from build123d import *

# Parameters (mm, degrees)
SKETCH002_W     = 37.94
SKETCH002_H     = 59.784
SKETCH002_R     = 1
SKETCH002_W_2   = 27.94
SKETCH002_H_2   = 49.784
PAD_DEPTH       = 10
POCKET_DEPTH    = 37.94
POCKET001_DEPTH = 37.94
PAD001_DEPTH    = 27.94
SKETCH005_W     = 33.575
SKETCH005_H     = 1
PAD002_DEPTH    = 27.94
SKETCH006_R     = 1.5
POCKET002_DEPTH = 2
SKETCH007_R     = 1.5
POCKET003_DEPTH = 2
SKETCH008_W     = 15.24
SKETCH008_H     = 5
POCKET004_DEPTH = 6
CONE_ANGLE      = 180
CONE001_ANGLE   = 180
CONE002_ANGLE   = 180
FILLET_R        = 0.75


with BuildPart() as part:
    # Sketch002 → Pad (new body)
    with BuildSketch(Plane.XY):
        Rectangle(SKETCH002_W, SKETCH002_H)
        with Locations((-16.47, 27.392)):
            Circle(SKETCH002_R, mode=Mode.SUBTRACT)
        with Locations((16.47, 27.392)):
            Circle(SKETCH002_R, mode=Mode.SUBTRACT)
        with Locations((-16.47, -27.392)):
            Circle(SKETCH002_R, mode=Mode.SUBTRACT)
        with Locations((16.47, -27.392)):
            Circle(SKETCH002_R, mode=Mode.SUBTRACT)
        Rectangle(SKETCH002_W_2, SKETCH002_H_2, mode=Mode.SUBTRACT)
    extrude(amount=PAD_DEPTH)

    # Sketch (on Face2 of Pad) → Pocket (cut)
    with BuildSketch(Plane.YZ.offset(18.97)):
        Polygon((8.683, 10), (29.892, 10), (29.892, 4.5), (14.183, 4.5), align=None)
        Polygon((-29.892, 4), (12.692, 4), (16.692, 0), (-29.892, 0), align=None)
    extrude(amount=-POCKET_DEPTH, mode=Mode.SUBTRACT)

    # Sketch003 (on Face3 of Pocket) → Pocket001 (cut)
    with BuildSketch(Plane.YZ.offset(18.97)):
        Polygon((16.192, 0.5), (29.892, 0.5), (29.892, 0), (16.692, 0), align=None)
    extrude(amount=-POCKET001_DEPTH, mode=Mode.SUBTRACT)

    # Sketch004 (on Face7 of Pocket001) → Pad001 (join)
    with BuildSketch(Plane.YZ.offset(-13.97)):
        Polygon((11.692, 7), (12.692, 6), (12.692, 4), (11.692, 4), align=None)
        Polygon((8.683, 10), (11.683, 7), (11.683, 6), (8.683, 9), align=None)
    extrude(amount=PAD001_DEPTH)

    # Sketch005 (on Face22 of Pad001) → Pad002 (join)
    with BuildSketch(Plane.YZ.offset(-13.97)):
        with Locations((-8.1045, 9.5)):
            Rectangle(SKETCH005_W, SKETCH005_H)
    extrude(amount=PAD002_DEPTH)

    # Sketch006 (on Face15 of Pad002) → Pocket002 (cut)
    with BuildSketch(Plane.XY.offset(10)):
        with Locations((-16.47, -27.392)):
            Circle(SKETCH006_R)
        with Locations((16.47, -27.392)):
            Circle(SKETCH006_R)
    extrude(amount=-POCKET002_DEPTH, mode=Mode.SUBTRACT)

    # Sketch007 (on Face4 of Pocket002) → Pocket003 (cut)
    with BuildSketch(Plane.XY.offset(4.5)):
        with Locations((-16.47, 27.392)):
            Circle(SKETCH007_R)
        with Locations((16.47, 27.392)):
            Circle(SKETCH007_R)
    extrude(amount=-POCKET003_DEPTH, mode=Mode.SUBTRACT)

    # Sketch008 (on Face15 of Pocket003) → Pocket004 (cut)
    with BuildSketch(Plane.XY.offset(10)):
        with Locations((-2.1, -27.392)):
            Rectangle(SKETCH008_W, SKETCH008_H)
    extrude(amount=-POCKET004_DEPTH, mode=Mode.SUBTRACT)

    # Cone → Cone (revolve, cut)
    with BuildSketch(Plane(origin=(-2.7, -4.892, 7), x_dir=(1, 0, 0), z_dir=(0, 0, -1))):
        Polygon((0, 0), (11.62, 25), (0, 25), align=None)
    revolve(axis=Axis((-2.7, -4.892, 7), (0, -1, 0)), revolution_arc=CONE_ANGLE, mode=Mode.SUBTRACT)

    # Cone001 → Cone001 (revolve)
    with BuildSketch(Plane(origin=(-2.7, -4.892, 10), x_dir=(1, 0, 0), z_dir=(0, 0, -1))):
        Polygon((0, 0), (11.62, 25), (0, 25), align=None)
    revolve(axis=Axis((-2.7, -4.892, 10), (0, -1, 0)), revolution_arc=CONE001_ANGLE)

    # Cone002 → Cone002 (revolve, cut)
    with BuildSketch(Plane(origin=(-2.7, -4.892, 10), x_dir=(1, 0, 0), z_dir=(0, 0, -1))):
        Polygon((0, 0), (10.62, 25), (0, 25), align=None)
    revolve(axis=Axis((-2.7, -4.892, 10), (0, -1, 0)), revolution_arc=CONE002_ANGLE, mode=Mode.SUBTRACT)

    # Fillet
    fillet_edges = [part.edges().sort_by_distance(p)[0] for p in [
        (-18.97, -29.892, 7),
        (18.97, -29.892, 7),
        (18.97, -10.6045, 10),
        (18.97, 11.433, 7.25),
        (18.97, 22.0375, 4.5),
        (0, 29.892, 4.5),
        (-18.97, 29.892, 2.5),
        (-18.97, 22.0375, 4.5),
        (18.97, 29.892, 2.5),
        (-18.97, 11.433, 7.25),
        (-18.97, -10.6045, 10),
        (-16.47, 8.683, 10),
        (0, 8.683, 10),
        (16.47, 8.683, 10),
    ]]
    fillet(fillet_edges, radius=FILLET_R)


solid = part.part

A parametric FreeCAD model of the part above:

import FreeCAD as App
import Part
import Sketcher

V = App.Vector
Q = App.Units.Quantity


def edges_at(feature, points):
    """Names of the edges that pass closest to the given points."""
    edges = feature.Shape.Edges
    near = lambda p: min(range(len(edges)), key=lambda i: edges[i].distToShape(Part.Vertex(*p))[0])
    return sorted({f"Edge{near(p) + 1}" for p in points})

doc = App.newDocument("Part")
body = doc.addObject("PartDesign::Body", "Body")

# Sketch on XY plane
sketch1 = body.newObject("Sketcher::SketchObject", "Sketch")
sketch1.AttachmentSupport = (doc.getObject("XY_Plane"), [""])
sketch1.MapMode = "FlatFace"
sketch1.addGeometry(Part.LineSegment(V(-18.97, 29.892, 0), V(-18.97, -29.892, 0)), False)
sketch1.addGeometry(Part.LineSegment(V(-18.97, -29.892, 0), V(18.97, -29.892, 0)), False)
sketch1.addGeometry(Part.LineSegment(V(18.97, -29.892, 0), V(18.97, 29.892, 0)), False)
sketch1.addGeometry(Part.LineSegment(V(18.97, 29.892, 0), V(-18.97, 29.892, 0)), False)
sketch1.addGeometry(Part.Circle(V(-16.47, -27.392, 0), V(0, 0, 1), 1), False)
sketch1.addGeometry(Part.Circle(V(16.47, -27.392, 0), V(0, 0, 1), 1), False)
sketch1.addGeometry(Part.Circle(V(-16.47, 27.392, 0), V(0, 0, 1), 1), False)
sketch1.addGeometry(Part.LineSegment(V(13.97, -24.892, 0), V(-13.97, -24.892, 0)), False)
sketch1.addGeometry(Part.LineSegment(V(-13.97, -24.892, 0), V(-13.97, 24.892, 0)), False)
sketch1.addGeometry(Part.LineSegment(V(-13.97, 24.892, 0), V(13.97, 24.892, 0)), False)
sketch1.addGeometry(Part.LineSegment(V(13.97, 24.892, 0), V(13.97, -24.892, 0)), False)
sketch1.addGeometry(Part.Circle(V(16.47, 27.392, 0), V(0, 0, 1), 1), False)
sketch1.addConstraint(Sketcher.Constraint("Coincident", 0, 2, 1, 1))
sketch1.addConstraint(Sketcher.Constraint("Coincident", 1, 2, 2, 1))
sketch1.addConstraint(Sketcher.Constraint("Coincident", 2, 2, 3, 1))
sketch1.addConstraint(Sketcher.Constraint("Coincident", 3, 2, 0, 1))
sketch1.addConstraint(Sketcher.Constraint("Coincident", 7, 2, 8, 1))
sketch1.addConstraint(Sketcher.Constraint("Coincident", 8, 2, 9, 1))
sketch1.addConstraint(Sketcher.Constraint("Coincident", 9, 2, 10, 1))
sketch1.addConstraint(Sketcher.Constraint("Coincident", 10, 2, 7, 1))
sketch1.addConstraint(Sketcher.Constraint("Vertical", 0))
sketch1.addConstraint(Sketcher.Constraint("Horizontal", 1))
sketch1.addConstraint(Sketcher.Constraint("Vertical", 2))
sketch1.addConstraint(Sketcher.Constraint("Horizontal", 3))
sketch1.addConstraint(Sketcher.Constraint("Horizontal", 7))
sketch1.addConstraint(Sketcher.Constraint("Vertical", 8))
sketch1.addConstraint(Sketcher.Constraint("Horizontal", 9))
sketch1.addConstraint(Sketcher.Constraint("Vertical", 10))
sketch1.addConstraint(Sketcher.Constraint("Equal", 4, 5))
sketch1.addConstraint(Sketcher.Constraint("Equal", 5, 6))
sketch1.addConstraint(Sketcher.Constraint("Equal", 6, 11))
sketch1.addConstraint(Sketcher.Constraint("Symmetric", 5, 3, 6, 3, -1, 1))
sketch1.addConstraint(Sketcher.Constraint("Symmetric", 4, 3, 11, 3, -1, 1))
sketch1.addConstraint(Sketcher.Constraint("Symmetric", 0, 2, 2, 2, -1, 1))
sketch1.addConstraint(Sketcher.Constraint("Symmetric", 7, 2, 9, 2, -1, 1))
sketch1.addConstraint(Sketcher.Constraint("Symmetric", 4, 3, 5, 3, -2))
sketch1.addConstraint(Sketcher.Constraint("Diameter", 4, 2.0))
sketch1.addConstraint(Sketcher.Constraint("DistanceX", 0, 2, 7, 2, 5.0))
sketch1.addConstraint(Sketcher.Constraint("DistanceY", 0, 2, 7, 2, 5.0))
sketch1.addConstraint(Sketcher.Constraint("DistanceX", 1, 1, 1, 2, 37.94))
sketch1.addConstraint(Sketcher.Constraint("DistanceX", 0, 2, 4, 3, 2.5))
sketch1.addConstraint(Sketcher.Constraint("DistanceY", 0, 2, 4, 3, 2.5))
sketch1.addConstraint(Sketcher.Constraint("DistanceY", 0, 2, 0, 1, 59.784))
pad1 = body.newObject("PartDesign::Pad", "Pad")
pad1.Profile = sketch1
pad1.Length = 10

# Sketch on YZ plane
sketch2 = body.newObject("Sketcher::SketchObject", "Sketch001")
sketch2.AttachmentSupport = (doc.getObject("YZ_Plane"), [""])
sketch2.MapMode = "FlatFace"
sketch2.AttachmentOffset = App.Placement(V(0, 0, 18.97), App.Rotation())
sketch2.addGeometry(Part.LineSegment(V(29.892, 10, 0), V(8.683, 10, 0)), False)
sketch2.addGeometry(Part.LineSegment(V(8.683, 10, 0), V(14.183, 4.5, 0)), False)
sketch2.addGeometry(Part.LineSegment(V(14.183, 4.5, 0), V(29.892, 4.5, 0)), False)
sketch2.addGeometry(Part.LineSegment(V(29.892, 4.5, 0), V(29.892, 10, 0)), False)
sketch2.addGeometry(Part.LineSegment(V(12.692, 4, 0), V(-29.892, 4, 0)), False)
sketch2.addGeometry(Part.LineSegment(V(-29.892, 4, 0), V(-29.892, 0, 0)), False)
sketch2.addGeometry(Part.LineSegment(V(-29.892, 0, 0), V(16.692, 0, 0)), False)
sketch2.addGeometry(Part.LineSegment(V(16.692, 0, 0), V(12.692, 4, 0)), False)
sketch2.addConstraint(Sketcher.Constraint("Coincident", 0, 2, 1, 1))
sketch2.addConstraint(Sketcher.Constraint("Coincident", 1, 2, 2, 1))
sketch2.addConstraint(Sketcher.Constraint("Coincident", 2, 2, 3, 1))
sketch2.addConstraint(Sketcher.Constraint("Coincident", 3, 2, 0, 1))
sketch2.addConstraint(Sketcher.Constraint("Coincident", 4, 2, 5, 1))
sketch2.addConstraint(Sketcher.Constraint("Coincident", 5, 2, 6, 1))
sketch2.addConstraint(Sketcher.Constraint("Coincident", 6, 2, 7, 1))
sketch2.addConstraint(Sketcher.Constraint("Coincident", 7, 2, 4, 1))
sketch2.addConstraint(Sketcher.Constraint("Horizontal", 0))
sketch2.addConstraint(Sketcher.Constraint("Horizontal", 2))
sketch2.addConstraint(Sketcher.Constraint("Vertical", 3))
sketch2.addConstraint(Sketcher.Constraint("Horizontal", 4))
sketch2.addConstraint(Sketcher.Constraint("Vertical", 5))
sketch2.addConstraint(Sketcher.Constraint("Horizontal", 6))
sketch2.addConstraint(Sketcher.Constraint("PointOnObject", 5, 2, -1))
sketch2.addConstraint(Sketcher.Constraint("Parallel", 1, 7))
sketch2.addConstraint(Sketcher.Constraint("DistanceY", 5, 2, 5, 1, 4.0))
sketch2.addConstraint(Sketcher.Constraint("Angle", 1, Q("-45 deg")))
sketch2.addConstraint(Sketcher.Constraint("DistanceY", 3, 1, 3, 2, 5.5))
sketch2.addConstraint(Sketcher.Constraint("DistanceY", -1, 1, 0, 2, 10.0))
sketch2.addConstraint(Sketcher.Constraint("DistanceX", 6, 2, 2, 2, 13.2))
sketch2.addConstraint(Sketcher.Constraint("DistanceX", 0, 2, 0, 1, 21.209))
sketch2.addConstraint(Sketcher.Constraint("DistanceX", 4, 2, 4, 1, 42.584))
sketch2.addConstraint(Sketcher.Constraint("DistanceX", -1, 1, 0, 2, 8.683))
pocket1 = body.newObject("PartDesign::Pocket", "Pocket")
pocket1.Profile = sketch2
pocket1.Length = 37.94

# Sketch on YZ plane
sketch3 = body.newObject("Sketcher::SketchObject", "Sketch002")
sketch3.AttachmentSupport = (doc.getObject("YZ_Plane"), [""])
sketch3.MapMode = "FlatFace"
sketch3.AttachmentOffset = App.Placement(V(0, 0, 18.97), App.Rotation())
sketch3.addGeometry(Part.LineSegment(V(29.892, 0.5, 0), V(16.192, 0.5, 0)), False)
sketch3.addGeometry(Part.LineSegment(V(16.192, 0.5, 0), V(16.692, 0, 0)), False)
sketch3.addGeometry(Part.LineSegment(V(16.692, 0, 0), V(29.892, 0, 0)), False)
sketch3.addGeometry(Part.LineSegment(V(29.892, 0, 0), V(29.892, 0.5, 0)), False)
sketch3.addConstraint(Sketcher.Constraint("Coincident", 0, 2, 1, 1))
sketch3.addConstraint(Sketcher.Constraint("Coincident", 1, 2, 2, 1))
sketch3.addConstraint(Sketcher.Constraint("Coincident", 2, 2, 3, 1))
sketch3.addConstraint(Sketcher.Constraint("Coincident", 3, 2, 0, 1))
sketch3.addConstraint(Sketcher.Constraint("Horizontal", 0))
sketch3.addConstraint(Sketcher.Constraint("Horizontal", 2))
sketch3.addConstraint(Sketcher.Constraint("Vertical", 3))
sketch3.addConstraint(Sketcher.Constraint("PointOnObject", 1, 2, -1))
sketch3.addConstraint(Sketcher.Constraint("Angle", 1, Q("-45 deg")))
sketch3.addConstraint(Sketcher.Constraint("DistanceX", 0, 2, 0, 1, 13.7))
sketch3.addConstraint(Sketcher.Constraint("DistanceX", 2, 1, 2, 2, 13.2))
sketch3.addConstraint(Sketcher.Constraint("DistanceX", -1, 1, 0, 2, 16.192))
pocket2 = body.newObject("PartDesign::Pocket", "Pocket001")
pocket2.Profile = sketch3
pocket2.Length = 37.94

# Sketch on YZ plane
sketch4 = body.newObject("Sketcher::SketchObject", "Sketch003")
sketch4.AttachmentSupport = (doc.getObject("YZ_Plane"), [""])
sketch4.MapMode = "FlatFace"
sketch4.AttachmentOffset = App.Placement(V(0, 0, -13.97), App.Rotation())
sketch4.addGeometry(Part.LineSegment(V(12.692, 6, 0), V(11.692, 7, 0)), False)
sketch4.addGeometry(Part.LineSegment(V(11.692, 7, 0), V(11.692, 4, 0)), False)
sketch4.addGeometry(Part.LineSegment(V(11.692, 4, 0), V(12.692, 4, 0)), False)
sketch4.addGeometry(Part.LineSegment(V(12.692, 4, 0), V(12.692, 6, 0)), False)
sketch4.addGeometry(Part.LineSegment(V(11.683, 7, 0), V(8.683, 10, 0)), False)
sketch4.addGeometry(Part.LineSegment(V(8.683, 10, 0), V(8.683, 9, 0)), False)
sketch4.addGeometry(Part.LineSegment(V(8.683, 9, 0), V(11.683, 6, 0)), False)
sketch4.addGeometry(Part.LineSegment(V(11.683, 6, 0), V(11.683, 7, 0)), False)
sketch4.addConstraint(Sketcher.Constraint("Coincident", 0, 2, 1, 1))
sketch4.addConstraint(Sketcher.Constraint("Coincident", 1, 2, 2, 1))
sketch4.addConstraint(Sketcher.Constraint("Coincident", 2, 2, 3, 1))
sketch4.addConstraint(Sketcher.Constraint("Coincident", 3, 2, 0, 1))
sketch4.addConstraint(Sketcher.Constraint("Coincident", 4, 2, 5, 1))
sketch4.addConstraint(Sketcher.Constraint("Coincident", 5, 2, 6, 1))
sketch4.addConstraint(Sketcher.Constraint("Coincident", 6, 2, 7, 1))
sketch4.addConstraint(Sketcher.Constraint("Coincident", 7, 2, 4, 1))
sketch4.addConstraint(Sketcher.Constraint("Vertical", 1))
sketch4.addConstraint(Sketcher.Constraint("Horizontal", 2))
sketch4.addConstraint(Sketcher.Constraint("Vertical", 3))
sketch4.addConstraint(Sketcher.Constraint("Vertical", 5))
sketch4.addConstraint(Sketcher.Constraint("Vertical", 7))
sketch4.addConstraint(Sketcher.Constraint("Parallel", 0, 4))
sketch4.addConstraint(Sketcher.Constraint("Parallel", 4, 6))
sketch4.addConstraint(Sketcher.Constraint("Horizontal", 3, 2, 6, 2))
sketch4.addConstraint(Sketcher.Constraint("Horizontal", 0, 2, 7, 2))
sketch4.addConstraint(Sketcher.Constraint("Equal", 2, 5))
sketch4.addConstraint(Sketcher.Constraint("DistanceX", 2, 1, 2, 2, 1.0))
sketch4.addConstraint(Sketcher.Constraint("DistanceY", 1, 2, 1, 1, 3.0))
sketch4.addConstraint(Sketcher.Constraint("DistanceY", -1, 1, 0, 2, 7.0))
sketch4.addConstraint(Sketcher.Constraint("DistanceY", -1, 1, 4, 2, 10.0))
sketch4.addConstraint(Sketcher.Constraint("DistanceX", -1, 1, 0, 2, 11.692))
sketch4.addConstraint(Sketcher.Constraint("DistanceX", -1, 1, 4, 2, 8.683))
pad2 = body.newObject("PartDesign::Pad", "Pad001")
pad2.Profile = sketch4
pad2.Length = 27.94

# Sketch on YZ plane
sketch5 = body.newObject("Sketcher::SketchObject", "Sketch004")
sketch5.AttachmentSupport = (doc.getObject("YZ_Plane"), [""])
sketch5.MapMode = "FlatFace"
sketch5.AttachmentOffset = App.Placement(V(0, 0, -13.97), App.Rotation())
sketch5.addGeometry(Part.LineSegment(V(-24.892, 10, 0), V(-24.892, 9, 0)), False)
sketch5.addGeometry(Part.LineSegment(V(-24.892, 9, 0), V(8.683, 9, 0)), False)
sketch5.addGeometry(Part.LineSegment(V(8.683, 9, 0), V(8.683, 10, 0)), False)
sketch5.addGeometry(Part.LineSegment(V(8.683, 10, 0), V(-24.892, 10, 0)), False)
sketch5.addConstraint(Sketcher.Constraint("Coincident", 0, 2, 1, 1))
sketch5.addConstraint(Sketcher.Constraint("Coincident", 1, 2, 2, 1))
sketch5.addConstraint(Sketcher.Constraint("Coincident", 2, 2, 3, 1))
sketch5.addConstraint(Sketcher.Constraint("Coincident", 3, 2, 0, 1))
sketch5.addConstraint(Sketcher.Constraint("Vertical", 0))
sketch5.addConstraint(Sketcher.Constraint("Horizontal", 1))
sketch5.addConstraint(Sketcher.Constraint("Vertical", 2))
sketch5.addConstraint(Sketcher.Constraint("Horizontal", 3))
sketch5.addConstraint(Sketcher.Constraint("DistanceY", 0, 2, 0, 1, 1.0))
sketch5.addConstraint(Sketcher.Constraint("DistanceY", -1, 1, 0, 2, 9.0))
sketch5.addConstraint(Sketcher.Constraint("DistanceX", 1, 1, 1, 2, 33.575))
sketch5.addConstraint(Sketcher.Constraint("DistanceX", 0, 2, -1, 1, 24.892))
pad3 = body.newObject("PartDesign::Pad", "Pad002")
pad3.Profile = sketch5
pad3.Length = 27.94

# Sketch on XY plane
sketch6 = body.newObject("Sketcher::SketchObject", "Sketch005")
sketch6.AttachmentSupport = (doc.getObject("XY_Plane"), [""])
sketch6.MapMode = "FlatFace"
sketch6.AttachmentOffset = App.Placement(V(0, 0, 10), App.Rotation())
sketch6.addGeometry(Part.Circle(V(-16.47, -27.392, 0), V(0, 0, 1), 1.5), False)
sketch6.addGeometry(Part.Circle(V(16.47, -27.392, 0), V(0, 0, 1), 1.5), False)
sketch6.addConstraint(Sketcher.Constraint("Equal", 0, 1))
sketch6.addConstraint(Sketcher.Constraint("Symmetric", 0, 3, 1, 3, -2))
sketch6.addConstraint(Sketcher.Constraint("Diameter", 0, 3.0))
sketch6.addConstraint(Sketcher.Constraint("DistanceX", 0, 3, -1, 1, 16.47))
sketch6.addConstraint(Sketcher.Constraint("DistanceY", 0, 3, -1, 1, 27.392))
pocket3 = body.newObject("PartDesign::Pocket", "Pocket002")
pocket3.Profile = sketch6
pocket3.Length = 2

# Sketch on XY plane
sketch7 = body.newObject("Sketcher::SketchObject", "Sketch006")
sketch7.AttachmentSupport = (doc.getObject("XY_Plane"), [""])
sketch7.MapMode = "FlatFace"
sketch7.AttachmentOffset = App.Placement(V(0, 0, 4.5), App.Rotation())
sketch7.addGeometry(Part.Circle(V(-16.47, 27.392, 0), V(0, 0, 1), 1.5), False)
sketch7.addGeometry(Part.Circle(V(16.47, 27.392, 0), V(0, 0, 1), 1.5), False)
sketch7.addConstraint(Sketcher.Constraint("Equal", 0, 1))
sketch7.addConstraint(Sketcher.Constraint("Symmetric", 0, 3, 1, 3, -2))
sketch7.addConstraint(Sketcher.Constraint("Diameter", 0, 3.0))
sketch7.addConstraint(Sketcher.Constraint("DistanceX", 0, 3, -1, 1, 16.47))
sketch7.addConstraint(Sketcher.Constraint("DistanceY", -1, 1, 0, 3, 27.392))
pocket4 = body.newObject("PartDesign::Pocket", "Pocket003")
pocket4.Profile = sketch7
pocket4.Length = 2

# Sketch on XY plane
sketch8 = body.newObject("Sketcher::SketchObject", "Sketch007")
sketch8.AttachmentSupport = (doc.getObject("XY_Plane"), [""])
sketch8.MapMode = "FlatFace"
sketch8.AttachmentOffset = App.Placement(V(0, 0, 10), App.Rotation())
sketch8.addGeometry(Part.LineSegment(V(-9.72, -24.892, 0), V(-9.72, -29.892, 0)), False)
sketch8.addGeometry(Part.LineSegment(V(-9.72, -29.892, 0), V(5.52, -29.892, 0)), False)
sketch8.addGeometry(Part.LineSegment(V(5.52, -29.892, 0), V(5.52, -24.892, 0)), False)
sketch8.addGeometry(Part.LineSegment(V(5.52, -24.892, 0), V(-9.72, -24.892, 0)), False)
sketch8.addConstraint(Sketcher.Constraint("Coincident", 0, 2, 1, 1))
sketch8.addConstraint(Sketcher.Constraint("Coincident", 1, 2, 2, 1))
sketch8.addConstraint(Sketcher.Constraint("Coincident", 2, 2, 3, 1))
sketch8.addConstraint(Sketcher.Constraint("Coincident", 3, 2, 0, 1))
sketch8.addConstraint(Sketcher.Constraint("Vertical", 0))
sketch8.addConstraint(Sketcher.Constraint("Horizontal", 1))
sketch8.addConstraint(Sketcher.Constraint("Vertical", 2))
sketch8.addConstraint(Sketcher.Constraint("Horizontal", 3))
sketch8.addConstraint(Sketcher.Constraint("DistanceY", 0, 2, 0, 1, 5.0))
sketch8.addConstraint(Sketcher.Constraint("DistanceX", 1, 1, 1, 2, 15.24))
sketch8.addConstraint(Sketcher.Constraint("DistanceX", 0, 2, -1, 1, 9.72))
sketch8.addConstraint(Sketcher.Constraint("DistanceY", 0, 2, -1, 1, 29.892))
pocket5 = body.newObject("PartDesign::Pocket", "Pocket004")
pocket5.Profile = sketch8
pocket5.Length = 6

# Sketch on XY plane
sketch9 = body.newObject("Sketcher::SketchObject", "Sketch008")
sketch9.AttachmentSupport = (doc.getObject("XY_Plane"), [""])
sketch9.MapMode = "FlatFace"
sketch9.AttachmentOffset = App.Placement(V(0, 0, 7), App.Rotation())
sketch9.addGeometry(Part.LineSegment(V(-2.7, -4.892, 0), V(8.92, -29.892, 0)), False)
sketch9.addGeometry(Part.LineSegment(V(8.92, -29.892, 0), V(-2.7, -29.892, 0)), False)
sketch9.addGeometry(Part.LineSegment(V(-2.7, -29.892, 0), V(-2.7, -4.892, 0)), False)
sketch9.addGeometry(Part.LineSegment(V(-2.7, -4.892, 0), V(-2.7, -29.892, 0)), True)  # axis
sketch9.addConstraint(Sketcher.Constraint("Coincident", 0, 2, 1, 1))
sketch9.addConstraint(Sketcher.Constraint("Coincident", 1, 2, 2, 1))
sketch9.addConstraint(Sketcher.Constraint("Coincident", 2, 2, 0, 1))
sketch9.addConstraint(Sketcher.Constraint("Horizontal", 1))
sketch9.addConstraint(Sketcher.Constraint("Vertical", 2))
sketch9.addConstraint(Sketcher.Constraint("Vertical", 3))
sketch9.addConstraint(Sketcher.Constraint("Coincident", 3, 1, 2, 2))
sketch9.addConstraint(Sketcher.Constraint("Horizontal", 0, 2, 3, 2))
sketch9.addConstraint(Sketcher.Constraint("DistanceY", 2, 1, 2, 2, 25.0))
sketch9.addConstraint(Sketcher.Constraint("DistanceX", 1, 2, 1, 1, 11.62))
sketch9.addConstraint(Sketcher.Constraint("DistanceX", 1, 2, -1, 1, 2.7))
sketch9.addConstraint(Sketcher.Constraint("DistanceY", 0, 2, -1, 1, 29.892))
groove = body.newObject("PartDesign::Groove", "Groove")
groove.Profile = sketch9
groove.ReferenceAxis = (sketch9, ["Axis0"])
groove.Angle = 180

# Sketch on XY plane
sketch10 = body.newObject("Sketcher::SketchObject", "Sketch009")
sketch10.AttachmentSupport = (doc.getObject("XY_Plane"), [""])
sketch10.MapMode = "FlatFace"
sketch10.AttachmentOffset = App.Placement(V(0, 0, 10), App.Rotation())
sketch10.addGeometry(Part.LineSegment(V(-2.7, -4.892, 0), V(8.92, -29.892, 0)), False)
sketch10.addGeometry(Part.LineSegment(V(8.92, -29.892, 0), V(-2.7, -29.892, 0)), False)
sketch10.addGeometry(Part.LineSegment(V(-2.7, -29.892, 0), V(-2.7, -4.892, 0)), False)
sketch10.addGeometry(Part.LineSegment(V(-2.7, -4.892, 0), V(-2.7, -29.892, 0)), True)  # axis
sketch10.addConstraint(Sketcher.Constraint("Coincident", 0, 2, 1, 1))
sketch10.addConstraint(Sketcher.Constraint("Coincident", 1, 2, 2, 1))
sketch10.addConstraint(Sketcher.Constraint("Coincident", 2, 2, 0, 1))
sketch10.addConstraint(Sketcher.Constraint("Horizontal", 1))
sketch10.addConstraint(Sketcher.Constraint("Vertical", 2))
sketch10.addConstraint(Sketcher.Constraint("Vertical", 3))
sketch10.addConstraint(Sketcher.Constraint("Coincident", 3, 1, 2, 2))
sketch10.addConstraint(Sketcher.Constraint("Horizontal", 0, 2, 3, 2))
sketch10.addConstraint(Sketcher.Constraint("DistanceY", 2, 1, 2, 2, 25.0))
sketch10.addConstraint(Sketcher.Constraint("DistanceX", 1, 2, 1, 1, 11.62))
sketch10.addConstraint(Sketcher.Constraint("DistanceX", 1, 2, -1, 1, 2.7))
sketch10.addConstraint(Sketcher.Constraint("DistanceY", 0, 2, -1, 1, 29.892))
revolution = body.newObject("PartDesign::Revolution", "Revolution")
revolution.Profile = sketch10
revolution.ReferenceAxis = (sketch10, ["Axis0"])
revolution.Angle = 180

# Sketch on XY plane
sketch11 = body.newObject("Sketcher::SketchObject", "Sketch010")
sketch11.AttachmentSupport = (doc.getObject("XY_Plane"), [""])
sketch11.MapMode = "FlatFace"
sketch11.AttachmentOffset = App.Placement(V(0, 0, 10), App.Rotation())
sketch11.addGeometry(Part.LineSegment(V(-2.7, -4.892, 0), V(7.92, -29.892, 0)), False)
sketch11.addGeometry(Part.LineSegment(V(7.92, -29.892, 0), V(-2.7, -29.892, 0)), False)
sketch11.addGeometry(Part.LineSegment(V(-2.7, -29.892, 0), V(-2.7, -4.892, 0)), False)
sketch11.addGeometry(Part.LineSegment(V(-2.7, -4.892, 0), V(-2.7, -29.892, 0)), True)  # axis
sketch11.addConstraint(Sketcher.Constraint("Coincident", 0, 2, 1, 1))
sketch11.addConstraint(Sketcher.Constraint("Coincident", 1, 2, 2, 1))
sketch11.addConstraint(Sketcher.Constraint("Coincident", 2, 2, 0, 1))
sketch11.addConstraint(Sketcher.Constraint("Horizontal", 1))
sketch11.addConstraint(Sketcher.Constraint("Vertical", 2))
sketch11.addConstraint(Sketcher.Constraint("Vertical", 3))
sketch11.addConstraint(Sketcher.Constraint("Coincident", 3, 1, 2, 2))
sketch11.addConstraint(Sketcher.Constraint("Horizontal", 0, 2, 3, 2))
sketch11.addConstraint(Sketcher.Constraint("DistanceY", 2, 1, 2, 2, 25.0))
sketch11.addConstraint(Sketcher.Constraint("DistanceX", 1, 2, 1, 1, 10.62))
sketch11.addConstraint(Sketcher.Constraint("DistanceX", 1, 2, -1, 1, 2.7))
sketch11.addConstraint(Sketcher.Constraint("DistanceY", 0, 2, -1, 1, 29.892))
groove2 = body.newObject("PartDesign::Groove", "Groove001")
groove2.Profile = sketch11
groove2.ReferenceAxis = (sketch11, ["Axis0"])
groove2.Angle = 180
doc.recompute()

fillet = body.newObject("PartDesign::Fillet", "Fillet")
fillet.Base = (groove2, edges_at(groove2, [
    (-18.97, -29.892, 7),
    (18.97, -29.892, 7),
    (18.97, -10.604, 10),
    (18.97, 11.433, 7.25),
    (18.97, 22.038, 4.5),
    (0, 29.892, 4.5),
    (-18.97, 29.892, 2.5),
    (-18.97, 22.038, 4.5),
    (18.97, 29.892, 2.5),
    (-18.97, 11.433, 7.25),
    (-18.97, -10.604, 10),
    (0, 8.683, 10),
    (0, 8.683, 10),
    (0, 8.683, 10),
]))
fillet.Radius = 0.75

doc.recompute()
